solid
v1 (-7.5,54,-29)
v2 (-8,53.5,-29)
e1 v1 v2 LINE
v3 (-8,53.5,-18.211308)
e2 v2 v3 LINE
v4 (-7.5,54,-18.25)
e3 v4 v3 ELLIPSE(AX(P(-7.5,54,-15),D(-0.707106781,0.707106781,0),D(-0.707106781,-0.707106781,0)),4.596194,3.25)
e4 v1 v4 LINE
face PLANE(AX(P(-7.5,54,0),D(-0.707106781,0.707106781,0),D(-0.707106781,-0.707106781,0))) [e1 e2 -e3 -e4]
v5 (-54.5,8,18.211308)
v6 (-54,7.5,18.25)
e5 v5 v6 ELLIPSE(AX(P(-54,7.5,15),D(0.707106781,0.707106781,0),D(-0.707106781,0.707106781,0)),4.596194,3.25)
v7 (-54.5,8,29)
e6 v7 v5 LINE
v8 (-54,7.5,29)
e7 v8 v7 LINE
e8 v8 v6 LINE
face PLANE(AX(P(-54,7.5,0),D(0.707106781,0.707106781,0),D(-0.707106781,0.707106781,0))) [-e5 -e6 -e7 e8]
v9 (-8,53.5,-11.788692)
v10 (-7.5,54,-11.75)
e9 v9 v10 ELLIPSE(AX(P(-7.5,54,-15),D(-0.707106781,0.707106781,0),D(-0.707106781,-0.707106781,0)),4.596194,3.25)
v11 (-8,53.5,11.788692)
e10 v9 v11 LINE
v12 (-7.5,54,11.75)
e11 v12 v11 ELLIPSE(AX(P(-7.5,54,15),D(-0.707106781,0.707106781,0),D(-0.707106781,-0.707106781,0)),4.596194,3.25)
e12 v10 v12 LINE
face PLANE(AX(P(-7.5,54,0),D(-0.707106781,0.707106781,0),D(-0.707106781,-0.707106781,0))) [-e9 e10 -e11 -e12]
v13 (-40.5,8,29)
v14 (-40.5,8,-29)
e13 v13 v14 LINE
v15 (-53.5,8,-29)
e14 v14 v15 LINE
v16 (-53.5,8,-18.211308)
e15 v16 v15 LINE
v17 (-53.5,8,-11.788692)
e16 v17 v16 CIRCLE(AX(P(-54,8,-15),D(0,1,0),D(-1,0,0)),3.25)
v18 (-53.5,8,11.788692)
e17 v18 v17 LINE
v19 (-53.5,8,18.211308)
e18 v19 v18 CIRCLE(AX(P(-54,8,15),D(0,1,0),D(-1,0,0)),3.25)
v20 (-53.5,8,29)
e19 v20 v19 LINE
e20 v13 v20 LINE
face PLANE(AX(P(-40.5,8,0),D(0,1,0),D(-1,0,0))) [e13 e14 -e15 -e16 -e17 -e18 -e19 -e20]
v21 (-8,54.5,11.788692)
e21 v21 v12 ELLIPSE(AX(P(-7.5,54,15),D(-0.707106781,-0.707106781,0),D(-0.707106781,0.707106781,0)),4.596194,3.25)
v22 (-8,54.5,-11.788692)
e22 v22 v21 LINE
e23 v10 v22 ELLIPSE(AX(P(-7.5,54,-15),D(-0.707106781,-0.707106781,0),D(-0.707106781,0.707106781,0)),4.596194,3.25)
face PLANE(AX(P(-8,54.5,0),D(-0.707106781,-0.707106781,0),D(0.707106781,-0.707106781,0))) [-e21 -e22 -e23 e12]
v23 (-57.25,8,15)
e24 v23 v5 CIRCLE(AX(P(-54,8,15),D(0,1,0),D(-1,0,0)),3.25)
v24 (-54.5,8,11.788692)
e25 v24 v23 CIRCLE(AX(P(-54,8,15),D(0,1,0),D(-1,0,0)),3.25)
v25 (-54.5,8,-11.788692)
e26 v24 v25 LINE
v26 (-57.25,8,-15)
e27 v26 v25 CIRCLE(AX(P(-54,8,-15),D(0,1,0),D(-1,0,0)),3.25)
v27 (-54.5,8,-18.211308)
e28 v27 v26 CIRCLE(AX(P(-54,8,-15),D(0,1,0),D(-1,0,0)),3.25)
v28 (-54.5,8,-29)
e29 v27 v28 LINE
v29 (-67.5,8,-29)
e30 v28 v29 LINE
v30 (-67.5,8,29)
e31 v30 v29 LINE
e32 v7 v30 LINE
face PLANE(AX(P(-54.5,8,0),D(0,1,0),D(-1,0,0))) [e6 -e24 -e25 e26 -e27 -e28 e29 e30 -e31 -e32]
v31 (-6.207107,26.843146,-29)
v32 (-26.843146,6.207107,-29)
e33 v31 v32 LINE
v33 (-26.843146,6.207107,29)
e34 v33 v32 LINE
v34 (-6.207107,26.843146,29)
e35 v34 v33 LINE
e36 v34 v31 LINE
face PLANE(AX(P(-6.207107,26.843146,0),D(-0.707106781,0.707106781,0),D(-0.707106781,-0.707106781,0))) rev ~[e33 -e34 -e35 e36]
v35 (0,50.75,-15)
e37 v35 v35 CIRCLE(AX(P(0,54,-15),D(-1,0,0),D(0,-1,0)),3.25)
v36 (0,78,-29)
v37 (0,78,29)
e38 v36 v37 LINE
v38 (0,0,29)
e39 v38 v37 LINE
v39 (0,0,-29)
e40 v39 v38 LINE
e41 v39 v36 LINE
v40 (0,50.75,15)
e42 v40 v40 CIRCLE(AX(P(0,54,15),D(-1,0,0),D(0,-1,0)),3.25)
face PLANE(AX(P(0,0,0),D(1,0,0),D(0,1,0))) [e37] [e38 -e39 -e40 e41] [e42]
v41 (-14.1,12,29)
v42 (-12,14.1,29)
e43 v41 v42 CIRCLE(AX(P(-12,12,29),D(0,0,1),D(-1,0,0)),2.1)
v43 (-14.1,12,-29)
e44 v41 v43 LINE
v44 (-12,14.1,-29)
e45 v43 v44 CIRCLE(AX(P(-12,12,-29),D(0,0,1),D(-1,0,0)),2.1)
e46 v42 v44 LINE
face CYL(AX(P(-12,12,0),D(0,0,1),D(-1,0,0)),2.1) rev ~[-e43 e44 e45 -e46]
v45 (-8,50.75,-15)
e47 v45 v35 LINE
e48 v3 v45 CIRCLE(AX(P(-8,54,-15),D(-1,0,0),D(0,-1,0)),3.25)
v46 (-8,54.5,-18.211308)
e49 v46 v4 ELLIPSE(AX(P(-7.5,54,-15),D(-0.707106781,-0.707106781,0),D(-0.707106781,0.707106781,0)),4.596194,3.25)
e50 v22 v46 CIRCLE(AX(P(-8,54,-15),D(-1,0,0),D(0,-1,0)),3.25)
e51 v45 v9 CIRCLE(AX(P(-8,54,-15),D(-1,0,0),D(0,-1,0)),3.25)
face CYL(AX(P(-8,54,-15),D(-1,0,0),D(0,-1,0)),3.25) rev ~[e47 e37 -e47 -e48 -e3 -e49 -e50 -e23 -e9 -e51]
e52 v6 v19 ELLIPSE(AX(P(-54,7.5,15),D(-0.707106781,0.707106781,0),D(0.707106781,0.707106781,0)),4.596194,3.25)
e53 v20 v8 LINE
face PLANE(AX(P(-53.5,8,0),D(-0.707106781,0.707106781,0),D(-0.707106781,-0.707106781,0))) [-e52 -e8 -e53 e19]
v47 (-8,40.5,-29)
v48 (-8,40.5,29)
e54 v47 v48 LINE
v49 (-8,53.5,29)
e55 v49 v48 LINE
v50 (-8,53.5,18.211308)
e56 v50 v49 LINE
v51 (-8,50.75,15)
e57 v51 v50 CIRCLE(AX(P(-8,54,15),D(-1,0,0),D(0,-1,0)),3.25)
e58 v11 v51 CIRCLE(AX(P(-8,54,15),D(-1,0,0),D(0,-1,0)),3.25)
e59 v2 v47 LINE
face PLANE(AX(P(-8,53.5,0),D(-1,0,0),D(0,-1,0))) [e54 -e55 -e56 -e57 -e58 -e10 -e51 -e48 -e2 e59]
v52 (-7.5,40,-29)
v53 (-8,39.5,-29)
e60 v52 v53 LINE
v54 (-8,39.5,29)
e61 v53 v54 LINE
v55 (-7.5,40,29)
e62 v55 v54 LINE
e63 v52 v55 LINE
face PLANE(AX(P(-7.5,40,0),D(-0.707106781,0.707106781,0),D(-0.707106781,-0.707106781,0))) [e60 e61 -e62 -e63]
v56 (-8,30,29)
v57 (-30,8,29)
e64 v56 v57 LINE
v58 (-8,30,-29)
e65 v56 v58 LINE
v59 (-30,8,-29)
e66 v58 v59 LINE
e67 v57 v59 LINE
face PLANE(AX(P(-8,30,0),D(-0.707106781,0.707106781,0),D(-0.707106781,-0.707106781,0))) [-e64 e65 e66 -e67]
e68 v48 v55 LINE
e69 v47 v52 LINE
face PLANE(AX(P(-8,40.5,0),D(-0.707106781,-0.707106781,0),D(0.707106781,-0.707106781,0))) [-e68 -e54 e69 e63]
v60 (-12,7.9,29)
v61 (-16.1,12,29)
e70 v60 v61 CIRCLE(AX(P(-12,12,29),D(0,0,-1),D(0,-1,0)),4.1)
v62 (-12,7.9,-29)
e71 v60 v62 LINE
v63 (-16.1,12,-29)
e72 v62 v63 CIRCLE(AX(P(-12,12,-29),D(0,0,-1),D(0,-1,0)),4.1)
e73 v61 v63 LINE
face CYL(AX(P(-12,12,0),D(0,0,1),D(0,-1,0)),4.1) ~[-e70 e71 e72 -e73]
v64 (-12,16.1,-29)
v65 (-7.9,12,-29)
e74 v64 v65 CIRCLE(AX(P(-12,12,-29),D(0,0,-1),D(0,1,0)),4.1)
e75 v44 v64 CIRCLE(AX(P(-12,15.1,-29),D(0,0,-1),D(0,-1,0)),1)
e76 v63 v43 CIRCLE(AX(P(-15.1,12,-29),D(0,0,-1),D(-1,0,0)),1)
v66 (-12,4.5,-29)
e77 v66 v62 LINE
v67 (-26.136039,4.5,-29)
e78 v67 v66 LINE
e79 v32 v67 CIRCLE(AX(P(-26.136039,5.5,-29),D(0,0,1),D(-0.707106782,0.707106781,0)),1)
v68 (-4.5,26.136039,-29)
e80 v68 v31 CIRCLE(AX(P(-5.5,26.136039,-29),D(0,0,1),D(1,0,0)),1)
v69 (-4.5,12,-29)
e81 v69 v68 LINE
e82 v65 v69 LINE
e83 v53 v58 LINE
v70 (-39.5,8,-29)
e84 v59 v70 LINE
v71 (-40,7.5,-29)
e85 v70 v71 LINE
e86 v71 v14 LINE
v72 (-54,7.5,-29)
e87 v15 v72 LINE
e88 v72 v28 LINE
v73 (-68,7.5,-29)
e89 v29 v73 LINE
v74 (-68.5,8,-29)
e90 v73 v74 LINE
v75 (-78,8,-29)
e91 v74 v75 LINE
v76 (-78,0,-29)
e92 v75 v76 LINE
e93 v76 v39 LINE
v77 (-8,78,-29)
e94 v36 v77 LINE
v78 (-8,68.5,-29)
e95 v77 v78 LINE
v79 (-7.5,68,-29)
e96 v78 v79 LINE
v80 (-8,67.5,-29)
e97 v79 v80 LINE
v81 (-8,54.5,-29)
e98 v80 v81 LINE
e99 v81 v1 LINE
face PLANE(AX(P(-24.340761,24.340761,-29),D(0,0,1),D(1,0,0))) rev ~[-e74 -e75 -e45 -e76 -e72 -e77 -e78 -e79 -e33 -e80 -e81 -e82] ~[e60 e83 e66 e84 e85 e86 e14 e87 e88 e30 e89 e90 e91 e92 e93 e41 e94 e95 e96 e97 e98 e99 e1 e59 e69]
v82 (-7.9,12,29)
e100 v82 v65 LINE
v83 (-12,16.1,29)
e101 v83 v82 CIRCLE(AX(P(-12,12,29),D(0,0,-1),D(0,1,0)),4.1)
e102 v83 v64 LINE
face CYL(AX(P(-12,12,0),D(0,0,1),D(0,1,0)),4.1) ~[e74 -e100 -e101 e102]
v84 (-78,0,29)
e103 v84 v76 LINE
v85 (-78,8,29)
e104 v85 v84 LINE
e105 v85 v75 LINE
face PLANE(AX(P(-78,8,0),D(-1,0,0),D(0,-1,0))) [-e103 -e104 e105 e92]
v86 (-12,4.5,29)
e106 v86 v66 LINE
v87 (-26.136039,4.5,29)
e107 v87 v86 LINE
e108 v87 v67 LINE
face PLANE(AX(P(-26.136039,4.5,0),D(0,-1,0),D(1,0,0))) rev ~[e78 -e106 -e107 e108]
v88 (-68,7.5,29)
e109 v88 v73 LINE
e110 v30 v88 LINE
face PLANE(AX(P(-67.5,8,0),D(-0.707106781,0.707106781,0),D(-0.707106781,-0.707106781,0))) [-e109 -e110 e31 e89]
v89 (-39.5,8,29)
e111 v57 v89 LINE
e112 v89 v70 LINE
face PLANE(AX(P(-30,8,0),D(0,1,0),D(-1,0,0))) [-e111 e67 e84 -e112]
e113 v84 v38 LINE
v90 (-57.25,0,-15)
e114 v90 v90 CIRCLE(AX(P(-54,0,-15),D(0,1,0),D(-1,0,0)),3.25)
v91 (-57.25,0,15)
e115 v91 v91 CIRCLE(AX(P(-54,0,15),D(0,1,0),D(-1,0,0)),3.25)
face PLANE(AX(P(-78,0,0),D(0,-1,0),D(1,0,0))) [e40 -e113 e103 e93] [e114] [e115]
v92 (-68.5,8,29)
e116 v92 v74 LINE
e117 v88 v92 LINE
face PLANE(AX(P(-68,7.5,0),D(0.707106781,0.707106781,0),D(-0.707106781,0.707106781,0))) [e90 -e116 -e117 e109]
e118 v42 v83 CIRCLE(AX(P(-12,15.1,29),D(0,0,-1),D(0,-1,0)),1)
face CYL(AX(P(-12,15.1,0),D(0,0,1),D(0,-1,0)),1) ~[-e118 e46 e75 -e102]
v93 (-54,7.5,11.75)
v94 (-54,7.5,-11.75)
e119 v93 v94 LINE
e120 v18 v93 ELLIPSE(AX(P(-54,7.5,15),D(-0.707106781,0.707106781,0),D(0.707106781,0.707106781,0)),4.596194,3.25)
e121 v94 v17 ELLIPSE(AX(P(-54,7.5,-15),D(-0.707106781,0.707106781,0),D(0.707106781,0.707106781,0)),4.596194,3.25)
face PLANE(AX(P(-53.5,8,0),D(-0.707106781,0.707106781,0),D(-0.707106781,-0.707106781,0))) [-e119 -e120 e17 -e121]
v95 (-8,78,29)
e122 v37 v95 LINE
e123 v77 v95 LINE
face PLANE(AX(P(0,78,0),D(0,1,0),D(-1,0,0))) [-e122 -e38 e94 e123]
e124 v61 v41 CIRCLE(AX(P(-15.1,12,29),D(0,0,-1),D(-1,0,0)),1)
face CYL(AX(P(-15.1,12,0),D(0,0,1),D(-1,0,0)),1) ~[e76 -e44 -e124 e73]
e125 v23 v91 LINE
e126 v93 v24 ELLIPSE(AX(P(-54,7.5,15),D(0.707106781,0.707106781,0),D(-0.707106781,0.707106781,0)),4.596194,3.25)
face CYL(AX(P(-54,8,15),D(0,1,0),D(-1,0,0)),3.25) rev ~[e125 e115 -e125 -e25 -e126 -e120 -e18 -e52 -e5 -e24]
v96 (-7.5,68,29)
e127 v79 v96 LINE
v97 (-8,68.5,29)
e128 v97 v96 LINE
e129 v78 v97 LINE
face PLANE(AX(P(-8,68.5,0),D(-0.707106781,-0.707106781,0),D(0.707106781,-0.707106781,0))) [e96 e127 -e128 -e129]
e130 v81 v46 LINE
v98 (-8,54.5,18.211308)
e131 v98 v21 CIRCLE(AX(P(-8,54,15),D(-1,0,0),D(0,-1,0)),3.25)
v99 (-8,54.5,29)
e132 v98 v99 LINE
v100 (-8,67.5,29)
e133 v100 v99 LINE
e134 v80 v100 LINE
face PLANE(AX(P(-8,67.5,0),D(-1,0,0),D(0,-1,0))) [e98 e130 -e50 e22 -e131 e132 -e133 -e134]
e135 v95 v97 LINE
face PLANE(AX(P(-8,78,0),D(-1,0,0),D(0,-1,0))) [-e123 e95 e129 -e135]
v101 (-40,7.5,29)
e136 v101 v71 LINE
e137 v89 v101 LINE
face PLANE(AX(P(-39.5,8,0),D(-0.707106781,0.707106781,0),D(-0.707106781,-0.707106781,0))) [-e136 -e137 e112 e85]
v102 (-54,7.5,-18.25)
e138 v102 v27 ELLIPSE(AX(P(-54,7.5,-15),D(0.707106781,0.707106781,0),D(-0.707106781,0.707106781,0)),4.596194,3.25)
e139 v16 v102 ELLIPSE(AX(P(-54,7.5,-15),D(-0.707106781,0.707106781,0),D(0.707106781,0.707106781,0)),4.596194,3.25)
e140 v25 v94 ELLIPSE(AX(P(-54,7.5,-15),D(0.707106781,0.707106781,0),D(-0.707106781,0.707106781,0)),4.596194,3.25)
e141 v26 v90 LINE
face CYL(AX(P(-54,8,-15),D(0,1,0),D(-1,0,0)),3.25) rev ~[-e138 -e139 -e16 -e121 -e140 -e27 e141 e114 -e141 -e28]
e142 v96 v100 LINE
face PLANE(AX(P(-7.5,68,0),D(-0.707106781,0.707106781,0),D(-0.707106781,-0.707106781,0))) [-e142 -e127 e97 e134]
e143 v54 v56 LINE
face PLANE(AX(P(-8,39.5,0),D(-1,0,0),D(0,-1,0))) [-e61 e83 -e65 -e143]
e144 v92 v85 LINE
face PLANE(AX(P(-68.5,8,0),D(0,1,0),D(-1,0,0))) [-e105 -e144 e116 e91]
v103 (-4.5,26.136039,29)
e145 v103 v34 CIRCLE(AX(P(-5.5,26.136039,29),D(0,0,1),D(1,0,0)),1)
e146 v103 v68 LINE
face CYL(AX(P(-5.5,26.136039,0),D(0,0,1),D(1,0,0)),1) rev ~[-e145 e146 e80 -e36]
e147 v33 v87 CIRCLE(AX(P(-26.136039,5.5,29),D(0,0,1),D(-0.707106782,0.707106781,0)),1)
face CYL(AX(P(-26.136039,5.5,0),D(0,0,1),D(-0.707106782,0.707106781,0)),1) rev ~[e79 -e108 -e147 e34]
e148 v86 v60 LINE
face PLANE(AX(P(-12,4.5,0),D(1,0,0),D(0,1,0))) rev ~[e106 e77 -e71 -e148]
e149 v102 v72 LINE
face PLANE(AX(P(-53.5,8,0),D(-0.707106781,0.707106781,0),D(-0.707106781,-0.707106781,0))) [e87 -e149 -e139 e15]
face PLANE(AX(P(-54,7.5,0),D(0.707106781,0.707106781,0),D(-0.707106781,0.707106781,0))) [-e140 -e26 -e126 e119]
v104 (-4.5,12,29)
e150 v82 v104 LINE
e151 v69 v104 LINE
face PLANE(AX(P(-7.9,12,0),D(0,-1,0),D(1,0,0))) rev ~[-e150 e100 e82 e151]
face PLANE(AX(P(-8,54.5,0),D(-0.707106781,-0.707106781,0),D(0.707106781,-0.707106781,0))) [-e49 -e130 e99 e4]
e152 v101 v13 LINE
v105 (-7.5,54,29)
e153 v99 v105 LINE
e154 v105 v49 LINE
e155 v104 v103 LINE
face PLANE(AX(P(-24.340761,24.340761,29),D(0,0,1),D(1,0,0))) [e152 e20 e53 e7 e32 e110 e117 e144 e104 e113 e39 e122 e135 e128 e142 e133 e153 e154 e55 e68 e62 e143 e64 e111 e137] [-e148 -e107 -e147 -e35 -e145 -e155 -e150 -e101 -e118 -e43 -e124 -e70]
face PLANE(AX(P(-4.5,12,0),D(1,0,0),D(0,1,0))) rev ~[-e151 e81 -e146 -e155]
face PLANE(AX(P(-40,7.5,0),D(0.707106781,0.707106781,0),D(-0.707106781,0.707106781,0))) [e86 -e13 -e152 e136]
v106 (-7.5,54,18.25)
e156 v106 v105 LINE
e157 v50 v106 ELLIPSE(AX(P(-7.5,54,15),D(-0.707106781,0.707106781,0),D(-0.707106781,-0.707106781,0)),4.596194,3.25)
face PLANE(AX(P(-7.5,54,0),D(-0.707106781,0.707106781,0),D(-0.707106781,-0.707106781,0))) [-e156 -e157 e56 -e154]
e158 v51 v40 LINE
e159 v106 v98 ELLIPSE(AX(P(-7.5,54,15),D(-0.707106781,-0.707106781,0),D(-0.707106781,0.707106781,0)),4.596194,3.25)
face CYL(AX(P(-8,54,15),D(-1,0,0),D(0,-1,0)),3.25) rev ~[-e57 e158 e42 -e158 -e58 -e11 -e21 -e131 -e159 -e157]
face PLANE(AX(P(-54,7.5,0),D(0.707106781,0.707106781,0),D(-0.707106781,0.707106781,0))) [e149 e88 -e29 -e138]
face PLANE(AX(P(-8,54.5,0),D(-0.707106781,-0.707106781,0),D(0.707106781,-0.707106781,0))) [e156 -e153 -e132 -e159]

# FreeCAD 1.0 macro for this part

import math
import FreeCAD as App
import Part
import Sketcher


def add_polygon(sketch, points):
    """Adds a closed chain of lines whose ends are joined by coincident constraints."""
    first, n = sketch.GeometryCount, len(points)
    for a, b in zip(points, points[1:] + points[:1]):
        sketch.addGeometry(Part.LineSegment(App.Vector(*a, 0), App.Vector(*b, 0)), False)
    for i in range(n):
        sketch.addConstraint(Sketcher.Constraint("Coincident", first + i, 2, first + (i + 1) % n, 1))

doc = App.newDocument("Part")
body = doc.addObject("PartDesign::Body", "Body")

# Sketch on XY plane
sketch1 = body.newObject("Sketcher::SketchObject", "Sketch")
sketch1.AttachmentSupport = (doc.getObject("XY_Plane"), [""])
sketch1.MapMode = "FlatFace"
add_polygon(sketch1, [(-78, 0), (0, 0), (0, 78), (-8, 78), (-8, 68.5), (-7.5, 68), (-8, 67.5), (-8, 54.5), (-7.5, 54), (-8, 53.5), (-8, 40.5), (-7.5, 40), (-8, 39.5), (-8, 30), (-30, 8), (-39.5, 8), (-40, 7.5), (-40.5, 8), (-53.5, 8), (-54, 7.5), (-54.5, 8), (-67.5, 8), (-68, 7.5), (-68.5, 8), (-78, 8)])  # lines 0-24
sketch1.addGeometry(Part.LineSegment(App.Vector(-4.5, 26.1, 0), App.Vector(-4.5, 12, 0)), False)  # 25
sketch1.addGeometry(Part.LineSegment(App.Vector(-4.5, 12, 0), App.Vector(-7.9, 12, 0)), False)  # 26
sketch1.addGeometry(Part.ArcOfCircle(Part.Circle(App.Vector(-12, 12, 0), App.Vector(0, 0, 1), 4.1), math.radians(0), math.radians(90)), False)  # 27
sketch1.addGeometry(Part.ArcOfCircle(Part.Circle(App.Vector(-12, 15.1, 0), App.Vector(0, 0, 1), 1), math.radians(90), math.radians(270)), False)  # 28
sketch1.addGeometry(Part.ArcOfCircle(Part.Circle(App.Vector(-12, 12, 0), App.Vector(0, 0, 1), 2.1), math.radians(180), math.radians(450)), False)  # 29
sketch1.addGeometry(Part.ArcOfCircle(Part.Circle(App.Vector(-15.1, 12, 0), App.Vector(0, 0, 1), 1), math.radians(0), math.radians(180)), False)  # 30
sketch1.addGeometry(Part.ArcOfCircle(Part.Circle(App.Vector(-12, 12, 0), App.Vector(0, 0, 1), 4.1), math.radians(180), math.radians(270)), False)  # 31
sketch1.addGeometry(Part.LineSegment(App.Vector(-12, 7.9, 0), App.Vector(-12, 4.5, 0)), False)  # 32
sketch1.addGeometry(Part.LineSegment(App.Vector(-12, 4.5, 0), App.Vector(-26.1, 4.5, 0)), False)  # 33
sketch1.addGeometry(Part.ArcOfCircle(Part.Circle(App.Vector(-26.1, 5.5, 0), App.Vector(0, 0, 1), 1), math.radians(135), math.radians(270)), False)  # 34
sketch1.addGeometry(Part.LineSegment(App.Vector(-26.8, 6.2, 0), App.Vector(-6.2, 26.8, 0)), False)  # 35
sketch1.addGeometry(Part.ArcOfCircle(Part.Circle(App.Vector(-5.5, 26.1, 0), App.Vector(0, 0, 1), 1), math.radians(0), math.radians(135)), False)  # 36
sketch1.addConstraint([
    Sketcher.Constraint("Coincident", 25, 2, 26, 1),
    Sketcher.Constraint("Coincident", 26, 2, 27, 1),
    Sketcher.Constraint("Tangent", 27, 2, 28, 1),
    Sketcher.Constraint("Tangent", 28, 2, 29, 2),
    Sketcher.Constraint("Tangent", 29, 1, 30, 1),
    Sketcher.Constraint("Tangent", 30, 2, 31, 1),
    Sketcher.Constraint("Coincident", 31, 2, 32, 1),
    Sketcher.Constraint("Coincident", 32, 2, 33, 1),
    Sketcher.Constraint("Tangent", 33, 2, 34, 2),
    Sketcher.Constraint("Tangent", 34, 1, 35, 1),
    Sketcher.Constraint("Tangent", 35, 2, 36, 2),
    Sketcher.Constraint("Tangent", 36, 1, 25, 1),
    Sketcher.Constraint("Horizontal", 0),
    Sketcher.Constraint("Vertical", 1),
    Sketcher.Constraint("Horizontal", 2),
    Sketcher.Constraint("Vertical", 3),
    Sketcher.Constraint("Vertical", 6),
    Sketcher.Constraint("Vertical", 9),
    Sketcher.Constraint("Vertical", 12),
    Sketcher.Constraint("Horizontal", 14),
    Sketcher.Constraint("Horizontal", 17),
    Sketcher.Constraint("Horizontal", 20),
    Sketcher.Constraint("Horizontal", 23),
    Sketcher.Constraint("Vertical", 24),
    Sketcher.Constraint("Vertical", 25),
    Sketcher.Constraint("Horizontal", 26),
    Sketcher.Constraint("Vertical", 32),
    Sketcher.Constraint("Horizontal", 33),
    Sketcher.Constraint("Coincident", 0, 2, -1, 1),
    Sketcher.Constraint("Coincident", 29, 3, 27, 3),
    Sketcher.Constraint("Coincident", 31, 3, 27, 3),
    Sketcher.Constraint("Equal", 28, 30),
    Sketcher.Constraint("Equal", 30, 34),
    Sketcher.Constraint("Equal", 34, 36),
    Sketcher.Constraint("Perpendicular", 4, 5),
    Sketcher.Constraint("Perpendicular", 5, 7),
    Sketcher.Constraint("Perpendicular", 7, 8),
    Sketcher.Constraint("Perpendicular", 8, 10),
    Sketcher.Constraint("Perpendicular", 10, 11),
    Sketcher.Constraint("Parallel", 11, 13),
    Sketcher.Constraint("Parallel", 13, 15),
    Sketcher.Constraint("Perpendicular", 15, 16),
    Sketcher.Constraint("Perpendicular", 16, 18),
    Sketcher.Constraint("Perpendicular", 18, 19),
    Sketcher.Constraint("Perpendicular", 19, 21),
    Sketcher.Constraint("Perpendicular", 21, 22),
    Sketcher.Constraint("Perpendicular", 22, 35),
    Sketcher.Constraint("Horizontal", 29, 3, 30, 3),
    Sketcher.Constraint("Horizontal", 14, 2, 16, 2),
    Sketcher.Constraint("Horizontal", 15, 2, 18, 2),
    Sketcher.Constraint("Horizontal", 17, 2, 19, 2),
    Sketcher.Constraint("Horizontal", 18, 2, 21, 2),
    Sketcher.Constraint("Horizontal", 20, 2, 22, 2),
    Sketcher.Constraint("Horizontal", 31, 3, 25, 2),
    Sketcher.Constraint("Vertical", 27, 3, 28, 3),
    Sketcher.Constraint("Vertical", 3, 2, 5, 2),
    Sketcher.Constraint("Vertical", 4, 2, 7, 2),
    Sketcher.Constraint("Vertical", 6, 2, 8, 2),
    Sketcher.Constraint("Vertical", 7, 2, 10, 2),
    Sketcher.Constraint("Vertical", 9, 2, 11, 2),
    Sketcher.Constraint("Vertical", 28, 2, 31, 2),
    Sketcher.Constraint("Equal", 17, 20),
    Sketcher.Constraint("Equal", 14, 23),
    Sketcher.Constraint("Equal", 0, 1),
    Sketcher.Constraint("Equal", 23, 3),
    Sketcher.Constraint("Equal", 20, 6),
    Sketcher.Constraint("Equal", 6, 9),
    Sketcher.Constraint("Equal", 3, 12),
    Sketcher.Constraint("Equal", 2, 24),
    Sketcher.Constraint("Equal", 33, 25),
    Sketcher.Constraint("Equal", 26, 32),
    Sketcher.Constraint("Radius", 28, 1.0),
    Sketcher.Constraint("Radius", 27, 4.1),
    Sketcher.Constraint("DistanceX", 0, 1, 0, 2, 78.0),
    Sketcher.Constraint("DistanceX", 2, 2, 2, 1, 8.0),
    Sketcher.Constraint("DistanceX", 17, 2, 17, 1, 13.0),
    Sketcher.Constraint("DistanceX", 14, 2, 14, 1, 9.5),
    Sketcher.Constraint("DistanceX", 26, 2, 26, 1, 3.4),
    Sketcher.Constraint("DistanceX", 27, 3, -1, 1, 12.0),
    Sketcher.Constraint("DistanceY", -1, 1, 27, 3, 12.0),
    Sketcher.Constraint("DistanceY", -1, 1, 4, 2, 68.0),
    Sketcher.Constraint("DistanceX", 33, 2, 33, 1, 14.136039),
])
pad1 = body.newObject("PartDesign::Pad", "Pad")
pad1.Profile = sketch1
pad1.Length = 58
pad1.Midplane = True

# Sketch on YZ plane
sketch2 = body.newObject("Sketcher::SketchObject", "Sketch001")
sketch2.AttachmentSupport = (doc.getObject("YZ_Plane"), [""])
sketch2.MapMode = "FlatFace"
sketch2.AttachmentOffset = App.Placement(App.Vector(0, 0, -8), App.Rotation())
sketch2.addGeometry([
    Part.Circle(App.Vector(54, -15, 0), App.Vector(0, 0, 1), 3.2),
    Part.Circle(App.Vector(54, 15, 0), App.Vector(0, 0, 1), 3.2),
], False)
sketch2.addConstraint([
    Sketcher.Constraint("Equal", 0, 1),
    Sketcher.Constraint("Symmetric", 0, 3, 1, 3, -1),
    Sketcher.Constraint("Diameter", 0, 6.5),
    Sketcher.Constraint("DistanceX", -1, 1, 0, 3, 54.0),
    Sketcher.Constraint("DistanceY", 0, 3, -1, 1, 15.0),
])
pocket1 = body.newObject("PartDesign::Pocket", "Pocket")
pocket1.Profile = sketch2
pocket1.Type = "ThroughAll"
pocket1.Reversed = True

# Sketch on XZ plane
sketch3 = body.newObject("Sketcher::SketchObject", "Sketch002")
sketch3.AttachmentSupport = (doc.getObject("XZ_Plane"), [""])
sketch3.MapMode = "FlatFace"
sketch3.AttachmentOffset = App.Placement(App.Vector(0, 0, -8), App.Rotation())
sketch3.addGeometry([
    Part.Circle(App.Vector(-54, 15, 0), App.Vector(0, 0, 1), 3.2),
    Part.Circle(App.Vector(-54, -15, 0), App.Vector(0, 0, 1), 3.2),
], False)
sketch3.addConstraint([
    Sketcher.Constraint("Equal", 0, 1),
    Sketcher.Constraint("Symmetric", 0, 3, 1, 3, -1),
    Sketcher.Constraint("Diameter", 0, 6.5),
    Sketcher.Constraint("DistanceX", 0, 3, -1, 1, 54.0),
    Sketcher.Constraint("DistanceY", -1, 1, 0, 3, 15.0),
])
pocket2 = body.newObject("PartDesign::Pocket", "Pocket001")
pocket2.Profile = sketch3
pocket2.Type = "ThroughAll"
pocket2.Reversed = True

doc.recompute()
